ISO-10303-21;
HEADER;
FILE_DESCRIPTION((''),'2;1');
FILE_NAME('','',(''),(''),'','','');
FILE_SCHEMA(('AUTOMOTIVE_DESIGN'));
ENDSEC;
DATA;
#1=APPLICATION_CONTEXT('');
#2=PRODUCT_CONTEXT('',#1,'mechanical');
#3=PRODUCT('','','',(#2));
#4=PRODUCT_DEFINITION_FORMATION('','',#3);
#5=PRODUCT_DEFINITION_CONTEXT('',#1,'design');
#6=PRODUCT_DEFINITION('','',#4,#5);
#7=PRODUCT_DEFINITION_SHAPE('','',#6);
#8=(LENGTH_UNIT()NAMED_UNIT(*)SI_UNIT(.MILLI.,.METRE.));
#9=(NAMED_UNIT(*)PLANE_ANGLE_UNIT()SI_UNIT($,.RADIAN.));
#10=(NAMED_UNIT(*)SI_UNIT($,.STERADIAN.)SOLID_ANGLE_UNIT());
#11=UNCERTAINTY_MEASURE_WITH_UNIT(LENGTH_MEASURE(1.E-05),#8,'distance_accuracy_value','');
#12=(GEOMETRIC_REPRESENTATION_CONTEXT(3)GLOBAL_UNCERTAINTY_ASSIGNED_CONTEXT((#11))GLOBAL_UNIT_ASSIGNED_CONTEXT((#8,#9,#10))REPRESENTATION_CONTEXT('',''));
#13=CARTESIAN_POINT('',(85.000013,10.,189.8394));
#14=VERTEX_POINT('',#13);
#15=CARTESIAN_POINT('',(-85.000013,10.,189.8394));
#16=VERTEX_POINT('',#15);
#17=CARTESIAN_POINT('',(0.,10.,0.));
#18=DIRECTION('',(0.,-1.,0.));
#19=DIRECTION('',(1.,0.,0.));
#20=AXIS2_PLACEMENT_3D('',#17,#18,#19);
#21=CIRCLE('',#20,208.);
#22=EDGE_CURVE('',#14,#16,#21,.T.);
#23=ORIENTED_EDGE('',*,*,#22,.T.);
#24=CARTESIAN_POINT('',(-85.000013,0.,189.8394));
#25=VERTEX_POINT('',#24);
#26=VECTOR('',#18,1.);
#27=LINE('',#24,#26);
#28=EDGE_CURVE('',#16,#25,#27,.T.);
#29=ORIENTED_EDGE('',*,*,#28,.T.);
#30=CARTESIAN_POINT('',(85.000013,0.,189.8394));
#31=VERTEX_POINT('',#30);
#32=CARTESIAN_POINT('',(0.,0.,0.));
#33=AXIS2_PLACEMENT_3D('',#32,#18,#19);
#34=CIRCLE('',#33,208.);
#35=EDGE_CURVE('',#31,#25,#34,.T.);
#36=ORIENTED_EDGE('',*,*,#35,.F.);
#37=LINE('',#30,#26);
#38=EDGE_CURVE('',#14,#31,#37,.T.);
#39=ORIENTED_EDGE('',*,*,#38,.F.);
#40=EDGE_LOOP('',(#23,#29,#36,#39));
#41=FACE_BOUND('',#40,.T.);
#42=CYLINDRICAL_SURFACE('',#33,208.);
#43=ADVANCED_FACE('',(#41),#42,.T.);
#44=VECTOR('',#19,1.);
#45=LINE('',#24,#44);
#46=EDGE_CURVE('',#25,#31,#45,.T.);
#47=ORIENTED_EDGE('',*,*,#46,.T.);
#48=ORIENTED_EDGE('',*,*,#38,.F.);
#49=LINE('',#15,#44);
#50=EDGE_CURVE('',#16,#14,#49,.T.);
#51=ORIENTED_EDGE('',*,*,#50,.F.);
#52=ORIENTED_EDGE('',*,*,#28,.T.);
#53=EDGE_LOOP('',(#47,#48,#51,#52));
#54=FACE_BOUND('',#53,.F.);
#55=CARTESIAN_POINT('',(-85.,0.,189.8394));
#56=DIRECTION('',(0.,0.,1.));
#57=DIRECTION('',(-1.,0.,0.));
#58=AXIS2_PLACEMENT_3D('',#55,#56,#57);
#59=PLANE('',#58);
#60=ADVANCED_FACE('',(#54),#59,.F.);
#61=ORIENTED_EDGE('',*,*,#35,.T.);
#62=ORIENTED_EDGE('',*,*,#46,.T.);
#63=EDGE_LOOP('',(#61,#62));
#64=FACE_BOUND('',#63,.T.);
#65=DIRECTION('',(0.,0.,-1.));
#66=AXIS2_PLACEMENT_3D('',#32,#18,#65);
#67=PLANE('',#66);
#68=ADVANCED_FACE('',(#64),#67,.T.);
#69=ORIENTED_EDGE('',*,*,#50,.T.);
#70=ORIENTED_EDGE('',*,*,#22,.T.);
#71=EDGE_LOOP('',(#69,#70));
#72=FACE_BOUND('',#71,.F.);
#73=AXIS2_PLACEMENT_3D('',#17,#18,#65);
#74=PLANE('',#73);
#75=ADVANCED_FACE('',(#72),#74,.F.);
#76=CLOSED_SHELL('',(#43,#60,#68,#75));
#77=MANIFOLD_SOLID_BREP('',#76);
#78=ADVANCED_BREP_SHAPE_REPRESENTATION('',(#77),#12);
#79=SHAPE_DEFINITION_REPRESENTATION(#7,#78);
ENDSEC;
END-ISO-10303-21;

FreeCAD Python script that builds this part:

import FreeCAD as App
import Part
import Sketcher
Q = App.Units.Quantity

doc = App.newDocument("Part")
body = doc.addObject("PartDesign::Body", "Body")

sketch1 = body.newObject("Sketcher::SketchObject", "Sketch")
sketch1.AttachmentSupport = (doc.getObject("XZ_Plane"), [""])
sketch1.MapMode = "FlatFace"
sketch1.addGeometry(Part.Circle(App.Vector(0, 0, 0), App.Vector(0, 0, 1), 208), False)
sketch1.addConstraint([
    Sketcher.Constraint("Coincident", 0, 3, -1, 1),
    Sketcher.Constraint("Diameter", 0, Q("416 mm")),
])
pad1 = body.newObject("PartDesign::Pad", "Pad")
pad1.Profile = sketch1
pad1.Length = 10
pad1.Reversed = True

sketch2 = body.newObject("Sketcher::SketchObject", "Sketch001")
sketch2.AttachmentSupport = (doc.getObject("XZ_Plane"), [""])
sketch2.MapMode = "FlatFace"
sketch2.addGeometry([
    Part.LineSegment(App.Vector(-85, -245.4, 0), App.Vector(-85, -244.7, 0)),
    Part.LineSegment(App.Vector(-85, -244.7, 0), App.Vector(85, -244.7, 0)),
    Part.LineSegment(App.Vector(85, -244.7, 0), App.Vector(85, -245.4, 0)),
    Part.LineSegment(App.Vector(85, -245.4, 0), App.Vector(232.2, -245.4, 0)),
    Part.LineSegment(App.Vector(232.2, -245.4, 0), App.Vector(232.2, 189.8, 0)),
    Part.LineSegment(App.Vector(232.2, 189.8, 0), App.Vector(-220.8, 189.8, 0)),
    Part.LineSegment(App.Vector(-220.8, 189.8, 0), App.Vector(-220.8, -245.4, 0)),
    Part.LineSegment(App.Vector(-220.8, -245.4, 0), App.Vector(-85, -245.4, 0)),
], False)
sketch2.addConstraint([
    Sketcher.Constraint("Coincident", 0, 2, 1, 1),
    Sketcher.Constraint("Coincident", 1, 2, 2, 1),
    Sketcher.Constraint("Coincident", 2, 2, 3, 1),
    Sketcher.Constraint("Coincident", 3, 2, 4, 1),
    Sketcher.Constraint("Coincident", 4, 2, 5, 1),
    Sketcher.Constraint("Coincident", 5, 2, 6, 1),
    Sketcher.Constraint("Coincident", 6, 2, 7, 1),
    Sketcher.Constraint("Coincident", 7, 2, 0, 1),
    Sketcher.Constraint("Vertical", 0),
    Sketcher.Constraint("Horizontal", 1),
    Sketcher.Constraint("Vertical", 2),
    Sketcher.Constraint("Horizontal", 3),
    Sketcher.Constraint("Vertical", 4),
    Sketcher.Constraint("Horizontal", 5),
    Sketcher.Constraint("Vertical", 6),
    Sketcher.Constraint("Horizontal", 7),
    Sketcher.Constraint("Symmetric", 2, 2, 7, 2, -2),
    Sketcher.Constraint("DistanceX", 0, 2, -1, 1, Q("85 mm")),
    Sketcher.Constraint("DistanceX", 3, 1, 3, 2, Q("147.208 mm")),
    Sketcher.Constraint("DistanceY", 4, 1, 4, 2, Q("435.225 mm")),
    Sketcher.Constraint("DistanceX", 5, 2, 5, 1, Q("453.0195 mm")),
    Sketcher.Constraint("DistanceY", 0, 1, 0, 2, Q("0.7123 mm")),
    Sketcher.Constraint("DistanceY", 0, 2, -1, 1, Q("244.6733 mm")),
])
pocket1 = body.newObject("PartDesign::Pocket", "Pocket")
pocket1.Profile = sketch2
pocket1.Length = 85.725

doc.recompute()
